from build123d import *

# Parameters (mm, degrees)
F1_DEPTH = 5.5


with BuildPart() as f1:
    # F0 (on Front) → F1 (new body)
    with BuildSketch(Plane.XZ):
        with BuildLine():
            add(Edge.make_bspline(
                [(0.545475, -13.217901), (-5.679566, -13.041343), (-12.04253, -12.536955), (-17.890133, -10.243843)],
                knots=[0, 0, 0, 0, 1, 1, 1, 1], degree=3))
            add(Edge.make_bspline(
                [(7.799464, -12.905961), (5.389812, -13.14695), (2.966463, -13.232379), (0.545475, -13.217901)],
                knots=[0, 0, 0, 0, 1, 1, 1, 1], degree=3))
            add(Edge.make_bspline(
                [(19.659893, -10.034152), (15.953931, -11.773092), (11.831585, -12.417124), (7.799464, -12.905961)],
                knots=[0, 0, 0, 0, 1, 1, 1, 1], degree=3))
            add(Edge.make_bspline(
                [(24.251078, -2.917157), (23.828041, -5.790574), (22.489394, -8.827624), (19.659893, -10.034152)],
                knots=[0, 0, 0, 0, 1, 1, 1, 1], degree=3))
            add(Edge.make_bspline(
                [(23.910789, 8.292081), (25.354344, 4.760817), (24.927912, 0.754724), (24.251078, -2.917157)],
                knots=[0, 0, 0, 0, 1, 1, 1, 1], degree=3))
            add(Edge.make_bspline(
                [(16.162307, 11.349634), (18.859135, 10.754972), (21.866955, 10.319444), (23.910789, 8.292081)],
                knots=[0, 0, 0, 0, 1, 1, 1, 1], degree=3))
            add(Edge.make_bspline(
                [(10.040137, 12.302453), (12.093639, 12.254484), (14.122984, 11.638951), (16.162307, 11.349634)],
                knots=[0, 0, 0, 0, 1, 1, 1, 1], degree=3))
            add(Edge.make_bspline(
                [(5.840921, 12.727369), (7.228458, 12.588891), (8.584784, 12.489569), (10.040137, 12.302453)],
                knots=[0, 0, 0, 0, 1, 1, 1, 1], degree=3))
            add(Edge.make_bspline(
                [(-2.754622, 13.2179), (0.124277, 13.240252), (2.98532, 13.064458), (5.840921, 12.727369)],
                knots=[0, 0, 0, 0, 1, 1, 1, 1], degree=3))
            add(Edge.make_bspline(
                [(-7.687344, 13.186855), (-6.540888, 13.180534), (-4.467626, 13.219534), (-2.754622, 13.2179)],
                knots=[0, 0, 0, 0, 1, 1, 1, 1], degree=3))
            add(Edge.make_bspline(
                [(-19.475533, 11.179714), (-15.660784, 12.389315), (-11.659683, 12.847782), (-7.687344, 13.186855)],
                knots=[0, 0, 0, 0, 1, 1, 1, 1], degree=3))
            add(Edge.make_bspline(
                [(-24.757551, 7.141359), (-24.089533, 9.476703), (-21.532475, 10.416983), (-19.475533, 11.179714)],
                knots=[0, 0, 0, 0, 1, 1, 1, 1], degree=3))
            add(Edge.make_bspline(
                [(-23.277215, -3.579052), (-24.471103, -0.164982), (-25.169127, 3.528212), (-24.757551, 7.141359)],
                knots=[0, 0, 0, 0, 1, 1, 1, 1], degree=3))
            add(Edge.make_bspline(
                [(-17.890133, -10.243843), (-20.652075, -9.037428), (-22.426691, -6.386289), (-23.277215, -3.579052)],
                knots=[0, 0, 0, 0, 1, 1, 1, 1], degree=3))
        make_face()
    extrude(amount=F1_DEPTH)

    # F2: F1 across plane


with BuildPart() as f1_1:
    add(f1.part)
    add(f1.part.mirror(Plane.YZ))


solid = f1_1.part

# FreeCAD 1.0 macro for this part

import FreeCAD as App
import Part
import Sketcher

V = App.Vector

doc = App.newDocument("Part")
body = doc.addObject("PartDesign::Body", "Body")

sketch1 = body.newObject("Sketcher::SketchObject", "Sketch")
sketch1.AttachmentSupport = (doc.getObject("XZ_Plane"), [""])
sketch1.MapMode = "FlatFace"
sketch1.addGeometry([
    Part.BSplineCurve([V(0.545475, -13.217901, 0), V(-5.679566, -13.041343, 0), V(-12.04253, -12.536955, 0), V(-17.890133, -10.243843, 0)], [4, 4], [0, 1], False, 3, [1, 1, 1, 1], False),
    Part.BSplineCurve([V(7.799464, -12.905961, 0), V(5.389812, -13.14695, 0), V(2.966463, -13.232379, 0), V(0.545475, -13.217901, 0)], [4, 4], [0, 1], False, 3, [1, 1, 1, 1], False),
    Part.BSplineCurve([V(19.659893, -10.034152, 0), V(15.953931, -11.773092, 0), V(11.831585, -12.417124, 0), V(7.799464, -12.905961, 0)], [4, 4], [0, 1], False, 3, [1, 1, 1, 1], False),
    Part.BSplineCurve([V(24.251078, -2.917157, 0), V(23.828041, -5.790574, 0), V(22.489394, -8.827624, 0), V(19.659893, -10.034152, 0)], [4, 4], [0, 1], False, 3, [1, 1, 1, 1], False),
    Part.BSplineCurve([V(23.910789, 8.292081, 0), V(25.354344, 4.760817, 0), V(24.927912, 0.754724, 0), V(24.251078, -2.917157, 0)], [4, 4], [0, 1], False, 3, [1, 1, 1, 1], False),
    Part.BSplineCurve([V(16.162307, 11.349634, 0), V(18.859135, 10.754972, 0), V(21.866955, 10.319444, 0), V(23.910789, 8.292081, 0)], [4, 4], [0, 1], False, 3, [1, 1, 1, 1], False),
    Part.BSplineCurve([V(10.040137, 12.302453, 0), V(12.093639, 12.254484, 0), V(14.122984, 11.638951, 0), V(16.162307, 11.349634, 0)], [4, 4], [0, 1], False, 3, [1, 1, 1, 1], False),
    Part.BSplineCurve([V(5.840921, 12.727369, 0), V(7.228458, 12.588891, 0), V(8.584784, 12.489569, 0), V(10.040137, 12.302453, 0)], [4, 4], [0, 1], False, 3, [1, 1, 1, 1], False),
    Part.BSplineCurve([V(-2.754622, 13.2179, 0), V(0.124277, 13.240252, 0), V(2.98532, 13.064458, 0), V(5.840921, 12.727369, 0)], [4, 4], [0, 1], False, 3, [1, 1, 1, 1], False),
    Part.BSplineCurve([V(-7.687344, 13.186855, 0), V(-6.540888, 13.180534, 0), V(-4.467626, 13.219534, 0), V(-2.754622, 13.2179, 0)], [4, 4], [0, 1], False, 3, [1, 1, 1, 1], False),
    Part.BSplineCurve([V(-19.475533, 11.179714, 0), V(-15.660784, 12.389315, 0), V(-11.659683, 12.847782, 0), V(-7.687344, 13.186855, 0)], [4, 4], [0, 1], False, 3, [1, 1, 1, 1], False),
    Part.BSplineCurve([V(-24.757551, 7.141359, 0), V(-24.089533, 9.476703, 0), V(-21.532475, 10.416983, 0), V(-19.475533, 11.179714, 0)], [4, 4], [0, 1], False, 3, [1, 1, 1, 1], False),
    Part.BSplineCurve([V(-23.277215, -3.579052, 0), V(-24.471103, -0.164982, 0), V(-25.169127, 3.528212, 0), V(-24.757551, 7.141359, 0)], [4, 4], [0, 1], False, 3, [1, 1, 1, 1], False),
    Part.BSplineCurve([V(-17.890133, -10.243843, 0), V(-20.652075, -9.037428, 0), V(-22.426691, -6.386289, 0), V(-23.277215, -3.579052, 0)], [4, 4], [0, 1], False, 3, [1, 1, 1, 1], False),
], False)
sketch1.addConstraint([
    Sketcher.Constraint("Block", 0),
    Sketcher.Constraint("Block", 1),
    Sketcher.Constraint("Block", 2),
    Sketcher.Constraint("Block", 3),
    Sketcher.Constraint("Block", 4),
    Sketcher.Constraint("Block", 5),
    Sketcher.Constraint("Block", 6),
    Sketcher.Constraint("Block", 7),
    Sketcher.Constraint("Block", 8),
    Sketcher.Constraint("Block", 9),
    Sketcher.Constraint("Block", 10),
    Sketcher.Constraint("Block", 11),
    Sketcher.Constraint("Block", 12),
    Sketcher.Constraint("Block", 13),
])
pad1 = body.newObject("PartDesign::Pad", "Pad")
pad1.Profile = sketch1
pad1.Length = 5.5
body2 = doc.addObject("PartDesign::Body", "Body001")
doc.recompute()

body2.BaseFeature = body
doc.recompute()

mirroring = doc.addObject("Part::Mirroring", "Mirroring")
mirroring.Source = body
mirroring.Base = V(0, 0, 0)
mirroring.Normal = V(1, 0, 0)
body3 = doc.addObject("PartDesign::Body", "Body002")
body3.BaseFeature = mirroring
boolean = body2.newObject("PartDesign::Boolean", "Boolean")
boolean.Type = "Fuse"
boolean.addObjects([body3])
doc.recompute()
mirroring.Visibility = False

doc.recompute()
